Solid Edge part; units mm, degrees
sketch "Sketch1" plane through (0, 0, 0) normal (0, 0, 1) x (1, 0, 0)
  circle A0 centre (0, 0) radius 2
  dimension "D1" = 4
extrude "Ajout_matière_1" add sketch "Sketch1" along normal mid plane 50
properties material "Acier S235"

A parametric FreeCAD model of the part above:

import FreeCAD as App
import Part
import Sketcher

V = App.Vector

doc = App.newDocument("Part")
params = doc.addObject("Spreadsheet::Sheet", "Params")
for row, (alias, value) in enumerate([
    ("sketch1_diameter", "4 mm"),
    ("pad1_length", "50 mm"),
], start=1):
    params.set(f"A{row}", alias)
    params.set(f"B{row}", "=" + value)
    params.setAlias(f"B{row}", alias)

body = doc.addObject("PartDesign::Body", "Body")

# Sketch on XY plane
sketch1 = body.newObject("Sketcher::SketchObject", "Sketch")
sketch1.AttachmentSupport = (doc.getObject("XY_Plane"), [""])
sketch1.MapMode = "FlatFace"
sketch1.addGeometry(Part.Circle(V(0, 0, 0), V(0, 0, 1), 2), False)
sketch1.addConstraint(Sketcher.Constraint("Coincident", 0, 3, -1, 1))
sketch1.addConstraint(Sketcher.Constraint("Diameter", 0, 4.0))
sketch1.setExpression("Constraints[1]", "Params.sketch1_diameter")
pad1 = body.newObject("PartDesign::Pad", "Pad")
pad1.Profile = sketch1
pad1.setExpression("Length", "Params.pad1_length")
pad1.Midplane = True

doc.recompute()
